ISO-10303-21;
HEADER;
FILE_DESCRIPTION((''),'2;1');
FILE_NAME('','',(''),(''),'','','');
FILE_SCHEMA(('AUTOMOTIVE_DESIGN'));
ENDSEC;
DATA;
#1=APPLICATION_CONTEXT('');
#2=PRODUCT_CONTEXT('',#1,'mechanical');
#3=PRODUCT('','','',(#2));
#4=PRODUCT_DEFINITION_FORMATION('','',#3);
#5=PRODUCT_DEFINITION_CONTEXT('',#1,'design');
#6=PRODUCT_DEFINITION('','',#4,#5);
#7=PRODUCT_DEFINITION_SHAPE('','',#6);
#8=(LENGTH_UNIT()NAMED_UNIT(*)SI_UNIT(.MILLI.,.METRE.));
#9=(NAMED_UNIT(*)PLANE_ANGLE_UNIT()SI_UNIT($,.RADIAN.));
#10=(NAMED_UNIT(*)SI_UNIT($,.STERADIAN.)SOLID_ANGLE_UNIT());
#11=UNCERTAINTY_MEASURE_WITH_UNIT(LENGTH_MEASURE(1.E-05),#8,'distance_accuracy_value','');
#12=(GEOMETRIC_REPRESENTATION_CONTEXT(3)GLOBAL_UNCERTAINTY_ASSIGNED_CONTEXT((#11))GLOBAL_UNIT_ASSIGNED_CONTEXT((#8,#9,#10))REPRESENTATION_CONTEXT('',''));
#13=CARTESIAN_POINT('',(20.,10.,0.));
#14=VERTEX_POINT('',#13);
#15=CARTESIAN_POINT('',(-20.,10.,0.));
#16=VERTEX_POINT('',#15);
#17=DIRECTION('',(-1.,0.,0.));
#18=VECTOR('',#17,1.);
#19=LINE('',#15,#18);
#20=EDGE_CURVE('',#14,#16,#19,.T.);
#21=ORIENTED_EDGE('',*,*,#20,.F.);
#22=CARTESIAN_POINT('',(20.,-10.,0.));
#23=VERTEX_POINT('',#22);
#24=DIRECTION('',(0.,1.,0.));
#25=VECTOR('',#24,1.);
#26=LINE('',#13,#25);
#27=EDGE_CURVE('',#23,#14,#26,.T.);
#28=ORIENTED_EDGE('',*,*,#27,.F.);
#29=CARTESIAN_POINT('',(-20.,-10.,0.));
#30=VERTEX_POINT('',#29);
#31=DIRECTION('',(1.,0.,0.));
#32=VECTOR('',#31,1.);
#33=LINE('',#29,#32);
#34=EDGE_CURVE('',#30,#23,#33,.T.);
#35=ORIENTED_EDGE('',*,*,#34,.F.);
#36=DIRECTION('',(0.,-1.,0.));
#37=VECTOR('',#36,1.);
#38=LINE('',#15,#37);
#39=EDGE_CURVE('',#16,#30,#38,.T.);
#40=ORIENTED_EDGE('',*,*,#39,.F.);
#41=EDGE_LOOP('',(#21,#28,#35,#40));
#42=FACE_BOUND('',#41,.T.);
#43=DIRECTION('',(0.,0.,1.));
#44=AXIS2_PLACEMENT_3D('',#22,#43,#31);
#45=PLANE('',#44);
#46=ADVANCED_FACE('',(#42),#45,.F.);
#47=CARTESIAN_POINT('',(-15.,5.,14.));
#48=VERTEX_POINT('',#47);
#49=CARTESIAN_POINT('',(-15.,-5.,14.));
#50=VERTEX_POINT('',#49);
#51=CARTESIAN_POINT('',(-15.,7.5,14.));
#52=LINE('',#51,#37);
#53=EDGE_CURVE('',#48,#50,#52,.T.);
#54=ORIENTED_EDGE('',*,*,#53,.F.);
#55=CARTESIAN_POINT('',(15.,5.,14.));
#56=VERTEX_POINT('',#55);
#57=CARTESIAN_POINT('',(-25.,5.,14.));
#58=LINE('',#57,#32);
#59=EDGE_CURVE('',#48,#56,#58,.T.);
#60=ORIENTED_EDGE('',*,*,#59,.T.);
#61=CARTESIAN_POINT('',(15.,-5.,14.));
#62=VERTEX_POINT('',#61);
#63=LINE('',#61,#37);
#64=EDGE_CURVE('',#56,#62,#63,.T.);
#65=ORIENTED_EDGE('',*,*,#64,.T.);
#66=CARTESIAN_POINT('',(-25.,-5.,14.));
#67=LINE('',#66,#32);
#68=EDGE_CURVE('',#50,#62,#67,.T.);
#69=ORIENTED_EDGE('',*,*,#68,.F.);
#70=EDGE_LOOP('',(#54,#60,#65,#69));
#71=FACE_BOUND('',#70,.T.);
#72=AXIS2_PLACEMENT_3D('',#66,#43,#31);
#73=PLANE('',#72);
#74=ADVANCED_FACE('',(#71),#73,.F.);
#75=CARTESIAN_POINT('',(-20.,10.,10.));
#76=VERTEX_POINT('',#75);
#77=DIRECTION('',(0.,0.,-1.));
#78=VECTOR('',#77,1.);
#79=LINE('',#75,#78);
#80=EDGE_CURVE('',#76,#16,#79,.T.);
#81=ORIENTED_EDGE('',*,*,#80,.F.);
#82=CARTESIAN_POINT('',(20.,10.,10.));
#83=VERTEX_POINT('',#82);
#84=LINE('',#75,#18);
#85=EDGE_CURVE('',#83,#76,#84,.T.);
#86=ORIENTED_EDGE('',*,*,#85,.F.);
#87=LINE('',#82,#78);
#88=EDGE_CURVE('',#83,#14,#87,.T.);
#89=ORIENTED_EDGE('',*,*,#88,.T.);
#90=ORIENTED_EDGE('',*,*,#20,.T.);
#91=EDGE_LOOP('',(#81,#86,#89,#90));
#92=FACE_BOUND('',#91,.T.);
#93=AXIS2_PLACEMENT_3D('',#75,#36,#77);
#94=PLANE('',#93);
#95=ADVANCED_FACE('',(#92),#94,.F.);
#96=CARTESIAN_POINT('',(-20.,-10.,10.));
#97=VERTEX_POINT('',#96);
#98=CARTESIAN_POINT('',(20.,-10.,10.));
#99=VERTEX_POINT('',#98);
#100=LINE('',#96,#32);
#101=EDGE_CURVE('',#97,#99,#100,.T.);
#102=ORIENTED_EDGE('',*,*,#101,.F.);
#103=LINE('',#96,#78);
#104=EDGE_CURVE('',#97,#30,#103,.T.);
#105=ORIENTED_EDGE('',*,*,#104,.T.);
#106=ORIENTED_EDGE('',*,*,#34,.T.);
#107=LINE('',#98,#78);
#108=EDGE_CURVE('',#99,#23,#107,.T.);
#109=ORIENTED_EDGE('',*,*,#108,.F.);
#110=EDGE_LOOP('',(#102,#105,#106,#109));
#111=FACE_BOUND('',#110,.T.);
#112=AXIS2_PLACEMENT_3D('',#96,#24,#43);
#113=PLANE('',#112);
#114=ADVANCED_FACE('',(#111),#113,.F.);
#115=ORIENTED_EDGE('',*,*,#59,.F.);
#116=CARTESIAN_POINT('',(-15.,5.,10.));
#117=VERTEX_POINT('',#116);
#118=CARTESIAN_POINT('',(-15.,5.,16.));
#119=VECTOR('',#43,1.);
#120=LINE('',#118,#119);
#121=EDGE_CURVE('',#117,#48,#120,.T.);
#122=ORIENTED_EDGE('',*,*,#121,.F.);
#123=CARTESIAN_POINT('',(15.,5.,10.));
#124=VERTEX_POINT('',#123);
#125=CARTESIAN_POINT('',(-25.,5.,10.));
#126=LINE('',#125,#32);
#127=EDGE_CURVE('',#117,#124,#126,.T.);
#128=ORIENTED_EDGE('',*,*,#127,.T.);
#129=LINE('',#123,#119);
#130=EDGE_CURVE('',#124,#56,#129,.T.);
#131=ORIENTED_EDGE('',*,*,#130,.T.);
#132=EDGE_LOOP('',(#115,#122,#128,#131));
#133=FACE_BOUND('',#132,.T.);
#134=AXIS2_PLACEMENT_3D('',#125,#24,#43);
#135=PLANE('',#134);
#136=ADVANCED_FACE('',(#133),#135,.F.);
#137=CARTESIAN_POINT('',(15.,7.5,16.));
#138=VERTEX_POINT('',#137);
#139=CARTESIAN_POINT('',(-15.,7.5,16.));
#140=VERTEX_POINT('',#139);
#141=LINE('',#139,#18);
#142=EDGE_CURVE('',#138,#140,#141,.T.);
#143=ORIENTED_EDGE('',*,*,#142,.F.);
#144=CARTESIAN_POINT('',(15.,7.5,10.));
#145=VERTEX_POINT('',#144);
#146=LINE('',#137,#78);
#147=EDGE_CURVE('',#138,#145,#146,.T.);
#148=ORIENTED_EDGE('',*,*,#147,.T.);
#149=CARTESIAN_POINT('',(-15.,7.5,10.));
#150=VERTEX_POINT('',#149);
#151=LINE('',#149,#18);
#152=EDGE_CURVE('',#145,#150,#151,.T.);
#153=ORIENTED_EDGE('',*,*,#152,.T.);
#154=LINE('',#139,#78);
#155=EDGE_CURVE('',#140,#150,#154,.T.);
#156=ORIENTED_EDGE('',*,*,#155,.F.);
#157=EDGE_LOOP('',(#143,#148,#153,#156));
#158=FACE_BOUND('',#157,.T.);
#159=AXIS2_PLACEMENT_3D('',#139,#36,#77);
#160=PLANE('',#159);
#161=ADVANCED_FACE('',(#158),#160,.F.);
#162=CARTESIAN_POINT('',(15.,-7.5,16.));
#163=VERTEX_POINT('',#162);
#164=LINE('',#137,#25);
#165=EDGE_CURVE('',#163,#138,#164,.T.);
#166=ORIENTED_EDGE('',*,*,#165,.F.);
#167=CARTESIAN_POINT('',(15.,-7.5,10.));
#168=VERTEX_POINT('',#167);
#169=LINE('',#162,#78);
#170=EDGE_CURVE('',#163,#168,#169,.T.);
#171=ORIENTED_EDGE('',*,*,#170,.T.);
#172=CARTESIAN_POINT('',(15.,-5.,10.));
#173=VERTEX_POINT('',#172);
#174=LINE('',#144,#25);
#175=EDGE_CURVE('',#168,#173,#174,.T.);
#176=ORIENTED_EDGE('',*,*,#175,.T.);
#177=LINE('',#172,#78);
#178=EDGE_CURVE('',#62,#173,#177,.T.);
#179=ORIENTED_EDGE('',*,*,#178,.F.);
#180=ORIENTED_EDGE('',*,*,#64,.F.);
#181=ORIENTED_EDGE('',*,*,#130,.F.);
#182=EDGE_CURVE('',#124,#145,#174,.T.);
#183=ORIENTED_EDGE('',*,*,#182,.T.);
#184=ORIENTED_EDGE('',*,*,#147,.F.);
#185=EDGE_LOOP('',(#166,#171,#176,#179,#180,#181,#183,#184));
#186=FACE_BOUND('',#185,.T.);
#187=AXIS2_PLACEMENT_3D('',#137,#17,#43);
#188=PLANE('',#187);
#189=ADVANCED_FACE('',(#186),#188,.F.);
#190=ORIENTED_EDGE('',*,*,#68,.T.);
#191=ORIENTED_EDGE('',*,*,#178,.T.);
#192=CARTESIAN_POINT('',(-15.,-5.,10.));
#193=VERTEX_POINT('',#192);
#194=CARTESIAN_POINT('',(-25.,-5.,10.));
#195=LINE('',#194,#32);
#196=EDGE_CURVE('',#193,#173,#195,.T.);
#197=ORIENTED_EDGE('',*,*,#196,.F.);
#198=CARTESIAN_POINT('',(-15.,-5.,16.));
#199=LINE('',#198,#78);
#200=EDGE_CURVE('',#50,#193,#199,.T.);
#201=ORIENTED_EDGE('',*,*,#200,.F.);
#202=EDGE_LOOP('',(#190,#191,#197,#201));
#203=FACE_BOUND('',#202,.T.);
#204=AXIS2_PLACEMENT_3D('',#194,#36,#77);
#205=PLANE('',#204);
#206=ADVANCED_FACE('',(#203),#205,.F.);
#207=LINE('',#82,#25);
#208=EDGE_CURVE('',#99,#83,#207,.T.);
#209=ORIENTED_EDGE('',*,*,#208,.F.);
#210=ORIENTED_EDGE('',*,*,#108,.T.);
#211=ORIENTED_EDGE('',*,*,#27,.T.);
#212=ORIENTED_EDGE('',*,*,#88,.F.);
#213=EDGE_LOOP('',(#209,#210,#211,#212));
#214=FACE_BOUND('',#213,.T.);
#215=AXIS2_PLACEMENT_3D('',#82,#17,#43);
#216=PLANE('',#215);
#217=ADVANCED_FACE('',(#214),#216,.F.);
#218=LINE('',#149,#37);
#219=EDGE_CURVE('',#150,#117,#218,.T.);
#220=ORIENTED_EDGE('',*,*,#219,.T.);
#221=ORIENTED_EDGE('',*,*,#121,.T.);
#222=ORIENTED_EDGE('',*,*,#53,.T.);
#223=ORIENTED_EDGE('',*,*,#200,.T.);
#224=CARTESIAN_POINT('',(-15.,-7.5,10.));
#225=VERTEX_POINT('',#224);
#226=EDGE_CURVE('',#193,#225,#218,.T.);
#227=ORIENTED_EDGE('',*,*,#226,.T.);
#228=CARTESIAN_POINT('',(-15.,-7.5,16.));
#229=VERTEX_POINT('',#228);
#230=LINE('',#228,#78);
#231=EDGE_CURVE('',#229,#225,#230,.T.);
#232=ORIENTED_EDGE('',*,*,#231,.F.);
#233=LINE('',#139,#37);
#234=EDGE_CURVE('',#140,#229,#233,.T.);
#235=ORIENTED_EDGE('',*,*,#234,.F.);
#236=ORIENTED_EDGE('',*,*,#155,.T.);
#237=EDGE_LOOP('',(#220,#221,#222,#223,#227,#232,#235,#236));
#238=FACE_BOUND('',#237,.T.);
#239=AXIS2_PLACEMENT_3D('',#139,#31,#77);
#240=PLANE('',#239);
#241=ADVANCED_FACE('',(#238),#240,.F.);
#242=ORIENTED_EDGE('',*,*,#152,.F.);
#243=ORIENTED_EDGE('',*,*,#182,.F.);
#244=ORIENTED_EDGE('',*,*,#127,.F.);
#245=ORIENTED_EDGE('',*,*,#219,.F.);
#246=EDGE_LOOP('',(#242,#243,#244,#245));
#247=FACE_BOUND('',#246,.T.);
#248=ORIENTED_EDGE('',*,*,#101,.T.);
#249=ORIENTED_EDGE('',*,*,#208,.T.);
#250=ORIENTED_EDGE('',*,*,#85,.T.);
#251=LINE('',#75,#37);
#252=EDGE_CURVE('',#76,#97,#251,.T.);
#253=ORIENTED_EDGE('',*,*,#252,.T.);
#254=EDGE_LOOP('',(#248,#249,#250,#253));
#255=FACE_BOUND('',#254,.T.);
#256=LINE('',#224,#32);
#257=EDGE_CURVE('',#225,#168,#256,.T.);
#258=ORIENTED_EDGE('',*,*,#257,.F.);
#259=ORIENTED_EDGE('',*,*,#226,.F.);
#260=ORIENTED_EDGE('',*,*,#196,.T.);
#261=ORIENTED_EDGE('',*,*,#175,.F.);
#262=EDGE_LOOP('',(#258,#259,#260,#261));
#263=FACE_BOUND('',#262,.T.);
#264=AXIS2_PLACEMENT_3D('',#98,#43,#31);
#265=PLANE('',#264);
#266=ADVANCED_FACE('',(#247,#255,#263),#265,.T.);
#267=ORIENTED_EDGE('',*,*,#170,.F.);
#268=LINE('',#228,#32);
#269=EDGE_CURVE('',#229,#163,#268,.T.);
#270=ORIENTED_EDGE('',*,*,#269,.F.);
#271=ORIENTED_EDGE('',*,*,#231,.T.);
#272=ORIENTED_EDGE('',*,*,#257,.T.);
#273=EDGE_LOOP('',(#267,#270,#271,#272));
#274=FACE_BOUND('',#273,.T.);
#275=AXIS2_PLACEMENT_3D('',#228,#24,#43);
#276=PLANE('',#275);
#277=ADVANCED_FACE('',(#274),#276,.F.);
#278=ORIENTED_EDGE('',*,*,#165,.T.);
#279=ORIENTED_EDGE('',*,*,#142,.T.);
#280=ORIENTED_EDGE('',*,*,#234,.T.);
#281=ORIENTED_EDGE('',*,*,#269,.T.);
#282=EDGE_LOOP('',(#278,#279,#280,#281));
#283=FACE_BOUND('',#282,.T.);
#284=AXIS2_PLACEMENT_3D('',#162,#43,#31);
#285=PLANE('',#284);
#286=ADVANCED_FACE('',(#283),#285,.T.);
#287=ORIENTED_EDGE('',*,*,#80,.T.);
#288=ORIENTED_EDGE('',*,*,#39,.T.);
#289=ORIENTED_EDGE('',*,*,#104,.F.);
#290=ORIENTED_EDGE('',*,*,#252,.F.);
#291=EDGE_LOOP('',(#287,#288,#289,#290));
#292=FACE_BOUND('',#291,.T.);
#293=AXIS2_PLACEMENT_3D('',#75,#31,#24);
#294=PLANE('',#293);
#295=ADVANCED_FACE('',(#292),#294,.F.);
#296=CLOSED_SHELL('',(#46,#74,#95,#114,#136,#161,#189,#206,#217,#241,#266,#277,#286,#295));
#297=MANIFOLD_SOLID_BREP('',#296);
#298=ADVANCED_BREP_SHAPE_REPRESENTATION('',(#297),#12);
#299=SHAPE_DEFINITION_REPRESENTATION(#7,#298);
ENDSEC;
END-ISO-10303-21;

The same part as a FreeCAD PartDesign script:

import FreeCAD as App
import Part
import Sketcher

V = App.Vector
Q = App.Units.Quantity

doc = App.newDocument("Part")
body = doc.addObject("PartDesign::Body", "Body")

# Sketch on XY plane
sketch1 = doc.addObject("Sketcher::SketchObject", "Sketch")
body.addObject(sketch1)
sketch1.AttachmentSupport = (doc.XY_Plane, [""])
sketch1.MapMode = "FlatFace"
sketch1.addGeometry([
    Part.LineSegment(V(-20, 10, 0), V(-20, -10, 0)),
    Part.LineSegment(V(-20, -10, 0), V(20, -10, 0)),
    Part.LineSegment(V(20, -10, 0), V(20, 10, 0)),
    Part.LineSegment(V(20, 10, 0), V(-20, 10, 0)),
], False)
sketch1.addConstraint([
    Sketcher.Constraint("Coincident", 0, 2, 1, 1),
    Sketcher.Constraint("Coincident", 1, 2, 2, 1),
    Sketcher.Constraint("Coincident", 2, 2, 3, 1),
    Sketcher.Constraint("Coincident", 3, 2, 0, 1),
    Sketcher.Constraint("Vertical", 0),
    Sketcher.Constraint("Horizontal", 1),
    Sketcher.Constraint("Vertical", 2),
    Sketcher.Constraint("Horizontal", 3),
    Sketcher.Constraint("Symmetric", 0, 2, 2, 2, -1, 1),
    Sketcher.Constraint("DistanceX", 1, 1, 1, 2, Q("40 mm")),
    Sketcher.Constraint("DistanceY", 0, 2, 0, 1, Q("20 mm")),
])
pad1 = doc.addObject("PartDesign::Pad", "Pad")
body.addObject(pad1)
pad1.Profile = sketch1
pad1.Length = 10

# Sketch on XY plane
sketch2 = doc.addObject("Sketcher::SketchObject", "Sketch001")
body.addObject(sketch2)
sketch2.AttachmentSupport = (doc.XY_Plane, [""])
sketch2.MapMode = "FlatFace"
sketch2.AttachmentOffset = App.Placement(V(0, 0, 10), App.Rotation())
sketch2.addGeometry([
    Part.LineSegment(V(-15, 8, 0), V(-15, -8, 0)),
    Part.LineSegment(V(-15, -8, 0), V(15, -8, 0)),
    Part.LineSegment(V(15, -8, 0), V(15, 8, 0)),
    Part.LineSegment(V(15, 8, 0), V(-15, 8, 0)),
], False)
sketch2.addConstraint([
    Sketcher.Constraint("Coincident", 0, 2, 1, 1),
    Sketcher.Constraint("Coincident", 1, 2, 2, 1),
    Sketcher.Constraint("Coincident", 2, 2, 3, 1),
    Sketcher.Constraint("Coincident", 3, 2, 0, 1),
    Sketcher.Constraint("Vertical", 0),
    Sketcher.Constraint("Horizontal", 1),
    Sketcher.Constraint("Vertical", 2),
    Sketcher.Constraint("Horizontal", 3),
    Sketcher.Constraint("Symmetric", 0, 2, 2, 2, -1, 1),
    Sketcher.Constraint("DistanceX", 1, 1, 1, 2, Q("30 mm")),
    Sketcher.Constraint("DistanceY", 0, 2, 0, 1, Q("15 mm")),
])
pad2 = doc.addObject("PartDesign::Pad", "Pad001")
body.addObject(pad2)
pad2.Profile = sketch2
pad2.Length = 6

# Sketch on YZ plane
sketch3 = doc.addObject("Sketcher::SketchObject", "Sketch002")
body.addObject(sketch3)
sketch3.AttachmentSupport = (doc.YZ_Plane, [""])
sketch3.MapMode = "FlatFace"
sketch3.AttachmentOffset = App.Placement(V(0, 0, 15), App.Rotation())
sketch3.addGeometry([
    Part.LineSegment(V(5, 14, 0), V(-5, 14, 0)),
    Part.LineSegment(V(-5, 14, 0), V(-5, 10, 0)),
    Part.LineSegment(V(-5, 10, 0), V(5, 10, 0)),
    Part.LineSegment(V(5, 10, 0), V(5, 14, 0)),
], False)
sketch3.addConstraint([
    Sketcher.Constraint("Coincident", 0, 2, 1, 1),
    Sketcher.Constraint("Coincident", 1, 2, 2, 1),
    Sketcher.Constraint("Coincident", 2, 2, 3, 1),
    Sketcher.Constraint("Coincident", 3, 2, 0, 1),
    Sketcher.Constraint("Horizontal", 0),
    Sketcher.Constraint("Vertical", 1),
    Sketcher.Constraint("Horizontal", 2),
    Sketcher.Constraint("Vertical", 3),
    Sketcher.Constraint("DistanceX", 0, 2, 0, 1, Q("10 mm")),
    Sketcher.Constraint("DistanceY", 1, 2, 1, 1, Q("4 mm")),
    Sketcher.Constraint("DistanceX", 0, 2, -1, 1, Q("5 mm")),
    Sketcher.Constraint("DistanceY", -1, 1, 0, 2, Q("14 mm")),
])
pocket1 = doc.addObject("PartDesign::Pocket", "Pocket")
body.addObject(pocket1)
pocket1.Profile = sketch3
pocket1.Length = 40

doc.recompute()
